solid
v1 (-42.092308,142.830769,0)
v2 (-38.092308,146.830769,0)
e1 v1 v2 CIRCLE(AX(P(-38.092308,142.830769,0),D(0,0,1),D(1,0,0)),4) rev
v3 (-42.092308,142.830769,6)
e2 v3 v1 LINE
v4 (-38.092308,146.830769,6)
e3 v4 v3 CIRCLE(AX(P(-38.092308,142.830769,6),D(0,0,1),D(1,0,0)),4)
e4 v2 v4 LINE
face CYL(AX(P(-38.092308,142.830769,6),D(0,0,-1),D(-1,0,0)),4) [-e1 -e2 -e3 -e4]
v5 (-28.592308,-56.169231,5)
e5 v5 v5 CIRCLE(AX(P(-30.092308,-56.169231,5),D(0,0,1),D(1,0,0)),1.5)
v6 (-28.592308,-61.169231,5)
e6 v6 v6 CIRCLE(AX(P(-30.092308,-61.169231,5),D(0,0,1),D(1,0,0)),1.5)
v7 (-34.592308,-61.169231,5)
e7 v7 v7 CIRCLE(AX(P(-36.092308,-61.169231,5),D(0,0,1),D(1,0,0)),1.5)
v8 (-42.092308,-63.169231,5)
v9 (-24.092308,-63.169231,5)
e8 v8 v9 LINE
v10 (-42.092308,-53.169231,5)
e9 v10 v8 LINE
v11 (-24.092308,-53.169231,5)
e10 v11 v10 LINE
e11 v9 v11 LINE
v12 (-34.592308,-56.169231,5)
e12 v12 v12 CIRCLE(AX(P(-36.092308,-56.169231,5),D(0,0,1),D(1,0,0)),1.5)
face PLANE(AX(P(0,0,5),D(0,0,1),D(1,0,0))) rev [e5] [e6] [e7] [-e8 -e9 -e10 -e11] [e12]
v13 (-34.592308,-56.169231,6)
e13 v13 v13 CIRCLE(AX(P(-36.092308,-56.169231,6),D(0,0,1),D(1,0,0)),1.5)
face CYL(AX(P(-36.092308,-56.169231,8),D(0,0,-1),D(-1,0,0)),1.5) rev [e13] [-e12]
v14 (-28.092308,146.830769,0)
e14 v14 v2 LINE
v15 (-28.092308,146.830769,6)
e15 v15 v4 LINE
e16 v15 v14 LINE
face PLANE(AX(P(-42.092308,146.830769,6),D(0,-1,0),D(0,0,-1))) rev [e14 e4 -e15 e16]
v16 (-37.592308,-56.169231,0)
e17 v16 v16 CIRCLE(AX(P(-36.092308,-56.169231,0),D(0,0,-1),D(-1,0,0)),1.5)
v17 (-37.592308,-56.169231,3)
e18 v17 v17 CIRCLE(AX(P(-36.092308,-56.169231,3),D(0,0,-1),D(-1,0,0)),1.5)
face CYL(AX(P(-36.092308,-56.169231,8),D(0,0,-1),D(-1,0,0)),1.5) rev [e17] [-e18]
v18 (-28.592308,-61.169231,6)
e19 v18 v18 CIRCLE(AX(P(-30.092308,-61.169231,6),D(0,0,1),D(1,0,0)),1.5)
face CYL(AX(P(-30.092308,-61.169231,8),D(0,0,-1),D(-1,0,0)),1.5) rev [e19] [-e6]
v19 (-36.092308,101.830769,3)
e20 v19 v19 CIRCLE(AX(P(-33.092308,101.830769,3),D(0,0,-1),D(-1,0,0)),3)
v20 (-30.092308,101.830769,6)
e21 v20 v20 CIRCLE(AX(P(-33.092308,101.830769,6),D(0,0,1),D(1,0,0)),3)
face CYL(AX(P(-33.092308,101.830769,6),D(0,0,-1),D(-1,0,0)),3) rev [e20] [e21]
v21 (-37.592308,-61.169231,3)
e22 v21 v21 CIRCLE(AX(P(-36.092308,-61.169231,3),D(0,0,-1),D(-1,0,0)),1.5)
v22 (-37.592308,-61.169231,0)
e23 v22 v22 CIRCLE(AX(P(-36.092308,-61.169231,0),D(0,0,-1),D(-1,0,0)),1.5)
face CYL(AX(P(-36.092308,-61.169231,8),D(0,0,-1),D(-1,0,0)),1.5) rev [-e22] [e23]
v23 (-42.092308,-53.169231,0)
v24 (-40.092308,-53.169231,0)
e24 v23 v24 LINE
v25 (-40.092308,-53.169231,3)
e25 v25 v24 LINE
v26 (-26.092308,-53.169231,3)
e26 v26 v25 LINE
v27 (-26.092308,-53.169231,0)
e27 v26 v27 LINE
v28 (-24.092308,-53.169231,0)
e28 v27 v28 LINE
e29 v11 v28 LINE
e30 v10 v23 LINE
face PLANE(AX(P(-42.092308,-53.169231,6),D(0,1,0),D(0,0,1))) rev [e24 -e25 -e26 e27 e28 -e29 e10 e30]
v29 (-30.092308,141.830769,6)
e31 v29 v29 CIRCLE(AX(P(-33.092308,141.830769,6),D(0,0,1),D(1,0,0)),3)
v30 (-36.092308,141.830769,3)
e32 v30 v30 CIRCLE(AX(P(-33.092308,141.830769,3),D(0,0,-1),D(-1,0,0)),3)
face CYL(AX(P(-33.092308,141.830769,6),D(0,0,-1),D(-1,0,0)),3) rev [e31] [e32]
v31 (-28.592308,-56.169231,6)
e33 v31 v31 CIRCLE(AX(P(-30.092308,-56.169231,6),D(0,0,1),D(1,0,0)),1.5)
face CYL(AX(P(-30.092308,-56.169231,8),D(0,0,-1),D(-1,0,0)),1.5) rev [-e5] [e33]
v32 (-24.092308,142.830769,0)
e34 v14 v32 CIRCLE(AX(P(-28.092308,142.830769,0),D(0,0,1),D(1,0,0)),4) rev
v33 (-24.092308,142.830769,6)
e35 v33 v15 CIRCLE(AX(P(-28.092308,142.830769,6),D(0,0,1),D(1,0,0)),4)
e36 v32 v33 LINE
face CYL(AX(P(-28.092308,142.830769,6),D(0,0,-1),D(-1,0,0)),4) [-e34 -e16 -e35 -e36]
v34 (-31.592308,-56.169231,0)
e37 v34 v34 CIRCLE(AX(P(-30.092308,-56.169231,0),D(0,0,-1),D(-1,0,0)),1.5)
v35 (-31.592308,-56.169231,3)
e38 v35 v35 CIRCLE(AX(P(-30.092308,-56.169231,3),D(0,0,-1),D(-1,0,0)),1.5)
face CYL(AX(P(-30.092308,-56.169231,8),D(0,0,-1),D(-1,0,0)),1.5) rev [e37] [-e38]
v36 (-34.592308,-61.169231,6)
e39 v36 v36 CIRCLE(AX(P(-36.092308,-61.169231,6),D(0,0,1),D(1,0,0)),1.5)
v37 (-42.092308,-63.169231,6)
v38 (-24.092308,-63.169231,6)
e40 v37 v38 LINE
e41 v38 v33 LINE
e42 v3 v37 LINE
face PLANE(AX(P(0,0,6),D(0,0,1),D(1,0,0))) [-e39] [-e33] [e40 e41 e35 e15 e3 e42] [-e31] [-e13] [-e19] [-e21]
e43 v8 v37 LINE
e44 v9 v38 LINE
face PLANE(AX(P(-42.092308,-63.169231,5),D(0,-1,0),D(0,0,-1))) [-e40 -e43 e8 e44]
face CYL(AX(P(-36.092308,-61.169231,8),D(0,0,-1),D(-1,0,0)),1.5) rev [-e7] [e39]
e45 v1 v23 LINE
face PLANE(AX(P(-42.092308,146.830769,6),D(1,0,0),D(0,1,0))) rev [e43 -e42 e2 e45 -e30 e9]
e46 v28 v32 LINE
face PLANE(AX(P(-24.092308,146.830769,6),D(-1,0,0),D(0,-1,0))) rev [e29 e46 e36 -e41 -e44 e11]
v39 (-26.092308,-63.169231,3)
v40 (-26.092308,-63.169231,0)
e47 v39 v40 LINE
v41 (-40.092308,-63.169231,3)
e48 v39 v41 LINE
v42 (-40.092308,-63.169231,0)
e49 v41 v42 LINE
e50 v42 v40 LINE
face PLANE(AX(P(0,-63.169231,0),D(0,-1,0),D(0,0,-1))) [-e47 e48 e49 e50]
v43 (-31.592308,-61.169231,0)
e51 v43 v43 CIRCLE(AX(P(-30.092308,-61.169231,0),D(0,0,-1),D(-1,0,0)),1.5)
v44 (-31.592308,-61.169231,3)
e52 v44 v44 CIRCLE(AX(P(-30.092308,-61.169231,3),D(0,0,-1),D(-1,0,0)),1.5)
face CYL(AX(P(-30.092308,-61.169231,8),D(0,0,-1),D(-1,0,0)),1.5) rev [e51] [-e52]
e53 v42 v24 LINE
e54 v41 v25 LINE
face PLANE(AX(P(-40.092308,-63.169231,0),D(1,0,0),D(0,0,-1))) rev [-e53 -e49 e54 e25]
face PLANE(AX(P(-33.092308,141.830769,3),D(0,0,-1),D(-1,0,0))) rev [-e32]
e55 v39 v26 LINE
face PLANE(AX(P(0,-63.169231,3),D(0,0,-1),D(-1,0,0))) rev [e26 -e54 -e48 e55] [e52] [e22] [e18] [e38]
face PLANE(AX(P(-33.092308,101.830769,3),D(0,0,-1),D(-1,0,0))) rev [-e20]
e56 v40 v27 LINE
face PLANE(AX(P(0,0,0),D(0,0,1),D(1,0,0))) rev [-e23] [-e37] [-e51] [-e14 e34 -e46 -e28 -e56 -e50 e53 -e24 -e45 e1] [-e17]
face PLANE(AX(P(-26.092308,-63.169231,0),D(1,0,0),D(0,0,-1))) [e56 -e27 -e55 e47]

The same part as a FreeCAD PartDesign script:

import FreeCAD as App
import Part
import Sketcher
from FreeCAD import Vector


def edges_at(feature, points):
    """Names of the edges that pass closest to the given points."""
    edges = feature.Shape.Edges
    near = lambda p: min(range(len(edges)), key=lambda i: edges[i].distToShape(Part.Vertex(*p))[0])
    return sorted({f"Edge{near(p) + 1}" for p in points})

doc = App.newDocument("Part")
body = doc.addObject("PartDesign::Body", "Body")

sketch1 = doc.addObject("Sketcher::SketchObject", "Sketch")
body.addObject(sketch1)
sketch1.AttachmentSupport = (doc.XY_Plane, [""])
sketch1.MapMode = "FlatFace"
sketch1.addGeometry([
    Part.LineSegment(Vector(-42.1, 146.8, 0), Vector(-42.1, -53.2, 0)),
    Part.LineSegment(Vector(-42.1, -53.2, 0), Vector(-24.1, -53.2, 0)),
    Part.LineSegment(Vector(-24.1, -53.2, 0), Vector(-24.1, 146.8, 0)),
    Part.LineSegment(Vector(-24.1, 146.8, 0), Vector(-42.1, 146.8, 0)),
    Part.Circle(Vector(-33.1, 101.8, 0), Vector(0, 0, 1), 3),
    Part.Circle(Vector(-33.1, 141.8, 0), Vector(0, 0, 1), 3),
], False)
sketch1.addConstraint([
    Sketcher.Constraint("Coincident", 0, 2, 1, 1),
    Sketcher.Constraint("Coincident", 1, 2, 2, 1),
    Sketcher.Constraint("Coincident", 2, 2, 3, 1),
    Sketcher.Constraint("Coincident", 3, 2, 0, 1),
    Sketcher.Constraint("Vertical", 0),
    Sketcher.Constraint("Horizontal", 1),
    Sketcher.Constraint("Vertical", 2),
    Sketcher.Constraint("Horizontal", 3),
    Sketcher.Constraint("Equal", 4, 5),
    Sketcher.Constraint("Vertical", 4, 3, 5, 3),
    Sketcher.Constraint("Diameter", 4, 6.0),
    Sketcher.Constraint("DistanceX", 1, 1, 1, 2, 18.0),
    Sketcher.Constraint("DistanceY", 0, 2, 0, 1, 200.0),
    Sketcher.Constraint("DistanceY", 4, 3, 5, 3, 40.0),
    Sketcher.Constraint("DistanceX", 0, 2, 4, 3, 9.0),
    Sketcher.Constraint("DistanceY", 0, 2, 4, 3, 155.0),
    Sketcher.Constraint("DistanceY", -1, 1, 4, 3, 101.830769),
    Sketcher.Constraint("DistanceX", 4, 3, -1, 1, 33.092308),
])
pad1 = doc.addObject("PartDesign::Pad", "Pad")
body.addObject(pad1)
pad1.Profile = sketch1
pad1.Length = 6

sketch2 = doc.addObject("Sketcher::SketchObject", "Sketch001")
body.addObject(sketch2)
sketch2.AttachmentSupport = (doc.XZ_Plane, [""])
sketch2.MapMode = "FlatFace"
sketch2.AttachmentOffset = App.Placement(Vector(0, 0, 53.169231), App.Rotation())
sketch2.addGeometry([
    Part.LineSegment(Vector(-40.1, 3, 0), Vector(-40.1, 0, 0)),
    Part.LineSegment(Vector(-40.1, 0, 0), Vector(-26.1, 0, 0)),
    Part.LineSegment(Vector(-26.1, 0, 0), Vector(-26.1, 3, 0)),
    Part.LineSegment(Vector(-26.1, 3, 0), Vector(-40.1, 3, 0)),
], False)
sketch2.addConstraint([
    Sketcher.Constraint("Coincident", 0, 2, 1, 1),
    Sketcher.Constraint("Coincident", 1, 2, 2, 1),
    Sketcher.Constraint("Coincident", 2, 2, 3, 1),
    Sketcher.Constraint("Coincident", 3, 2, 0, 1),
    Sketcher.Constraint("Vertical", 0),
    Sketcher.Constraint("Horizontal", 1),
    Sketcher.Constraint("Vertical", 2),
    Sketcher.Constraint("Horizontal", 3),
    Sketcher.Constraint("PointOnObject", 0, 2, -1),
    Sketcher.Constraint("DistanceX", 1, 1, 1, 2, 14.0),
    Sketcher.Constraint("DistanceY", 0, 2, 0, 1, 3.0),
    Sketcher.Constraint("DistanceX", 0, 2, -1, 1, 40.092308),
])
pad2 = doc.addObject("PartDesign::Pad", "Pad001")
body.addObject(pad2)
pad2.Profile = sketch2
pad2.Length = 10

sketch3 = doc.addObject("Sketcher::SketchObject", "Sketch002")
body.addObject(sketch3)
sketch3.AttachmentSupport = (doc.XY_Plane, [""])
sketch3.MapMode = "FlatFace"
sketch3.AttachmentOffset = App.Placement(Vector(0, 0, 6), App.Rotation())
sketch3.addGeometry([
    Part.LineSegment(Vector(-42, -53, 0), Vector(-42, -63, 0)),
    Part.LineSegment(Vector(-42, -63, 0), Vector(-24, -63, 0)),
    Part.LineSegment(Vector(-24, -63, 0), Vector(-24, -53, 0)),
    Part.LineSegment(Vector(-24, -53, 0), Vector(-42, -53, 0)),
], False)
sketch3.addConstraint([
    Sketcher.Constraint("Coincident", 0, 2, 1, 1),
    Sketcher.Constraint("Coincident", 1, 2, 2, 1),
    Sketcher.Constraint("Coincident", 2, 2, 3, 1),
    Sketcher.Constraint("Coincident", 3, 2, 0, 1),
    Sketcher.Constraint("Vertical", 0),
    Sketcher.Constraint("Horizontal", 1),
    Sketcher.Constraint("Vertical", 2),
    Sketcher.Constraint("Horizontal", 3),
    Sketcher.Constraint("DistanceX", 1, 1, 1, 2, 18.0),
    Sketcher.Constraint("DistanceY", 0, 2, 0, 1, 10.0),
    Sketcher.Constraint("DistanceY", 0, 2, -1, 1, 63.169231),
    Sketcher.Constraint("DistanceX", 0, 2, -1, 1, 42.092308),
])
pad3 = doc.addObject("PartDesign::Pad", "Pad002")
body.addObject(pad3)
pad3.Profile = sketch3
pad3.Length = 1
pad3.Reversed = True

sketch4 = doc.addObject("Sketcher::SketchObject", "Sketch003")
body.addObject(sketch4)
sketch4.AttachmentSupport = (doc.XY_Plane, [""])
sketch4.MapMode = "FlatFace"
sketch4.AttachmentOffset = App.Placement(Vector(0, 0, 5), App.Rotation())
sketch4.addGeometry([
    Part.Circle(Vector(-30.1, -56.2, 0), Vector(0, 0, 1), 1.5),
    Part.Circle(Vector(-36.1, -56.2, 0), Vector(0, 0, 1), 1.5),
    Part.Circle(Vector(-30.1, -61.2, 0), Vector(0, 0, 1), 1.5),
    Part.Circle(Vector(-36.1, -61.2, 0), Vector(0, 0, 1), 1.5),
], False)
sketch4.addConstraint([
    Sketcher.Constraint("Equal", 0, 1),
    Sketcher.Constraint("Equal", 1, 2),
    Sketcher.Constraint("Equal", 2, 3),
    Sketcher.Constraint("Horizontal", 0, 3, 1, 3),
    Sketcher.Constraint("Horizontal", 2, 3, 3, 3),
    Sketcher.Constraint("Vertical", 0, 3, 2, 3),
    Sketcher.Constraint("Vertical", 1, 3, 3, 3),
    Sketcher.Constraint("Diameter", 0, 3.0),
    Sketcher.Constraint("DistanceX", 1, 3, 0, 3, 6.0),
    Sketcher.Constraint("DistanceY", 2, 3, 0, 3, 5.0),
    Sketcher.Constraint("DistanceY", 0, 3, -1, 1, 56.169231),
    Sketcher.Constraint("DistanceX", 0, 3, -1, 1, 30.092308),
])
pocket1 = doc.addObject("PartDesign::Pocket", "Pocket")
body.addObject(pocket1)
pocket1.Profile = sketch4
pocket1.Type = "ThroughAll"
pocket1.Midplane = True

sketch5 = doc.addObject("Sketcher::SketchObject", "Sketch004")
body.addObject(sketch5)
sketch5.AttachmentSupport = (doc.XY_Plane, [""])
sketch5.MapMode = "FlatFace"
sketch5.addGeometry([
    Part.Circle(Vector(-33.1, 141.8, 0), Vector(0, 0, 1), 3),
    Part.Circle(Vector(-33.1, 101.8, 0), Vector(0, 0, 1), 3),
], False)
sketch5.addConstraint([
    Sketcher.Constraint("Equal", 0, 1),
    Sketcher.Constraint("Vertical", 0, 3, 1, 3),
    Sketcher.Constraint("Diameter", 0, 6.0),
    Sketcher.Constraint("DistanceY", 1, 3, 0, 3, 40.0),
    Sketcher.Constraint("DistanceY", -1, 1, 0, 3, 141.830769),
    Sketcher.Constraint("DistanceX", 0, 3, -1, 1, 33.092308),
])
pad4 = doc.addObject("PartDesign::Pad", "Pad003")
body.addObject(pad4)
pad4.Profile = sketch5
pad4.Length = 3
doc.recompute()

fillet = doc.addObject("PartDesign::Fillet", "Fillet")
body.addObject(fillet)
fillet.Base = (pad4, edges_at(pad4, [(-42.092, 146.831, 3), (-24.092, 146.831, 3)]))
fillet.Radius = 4

doc.recompute()
